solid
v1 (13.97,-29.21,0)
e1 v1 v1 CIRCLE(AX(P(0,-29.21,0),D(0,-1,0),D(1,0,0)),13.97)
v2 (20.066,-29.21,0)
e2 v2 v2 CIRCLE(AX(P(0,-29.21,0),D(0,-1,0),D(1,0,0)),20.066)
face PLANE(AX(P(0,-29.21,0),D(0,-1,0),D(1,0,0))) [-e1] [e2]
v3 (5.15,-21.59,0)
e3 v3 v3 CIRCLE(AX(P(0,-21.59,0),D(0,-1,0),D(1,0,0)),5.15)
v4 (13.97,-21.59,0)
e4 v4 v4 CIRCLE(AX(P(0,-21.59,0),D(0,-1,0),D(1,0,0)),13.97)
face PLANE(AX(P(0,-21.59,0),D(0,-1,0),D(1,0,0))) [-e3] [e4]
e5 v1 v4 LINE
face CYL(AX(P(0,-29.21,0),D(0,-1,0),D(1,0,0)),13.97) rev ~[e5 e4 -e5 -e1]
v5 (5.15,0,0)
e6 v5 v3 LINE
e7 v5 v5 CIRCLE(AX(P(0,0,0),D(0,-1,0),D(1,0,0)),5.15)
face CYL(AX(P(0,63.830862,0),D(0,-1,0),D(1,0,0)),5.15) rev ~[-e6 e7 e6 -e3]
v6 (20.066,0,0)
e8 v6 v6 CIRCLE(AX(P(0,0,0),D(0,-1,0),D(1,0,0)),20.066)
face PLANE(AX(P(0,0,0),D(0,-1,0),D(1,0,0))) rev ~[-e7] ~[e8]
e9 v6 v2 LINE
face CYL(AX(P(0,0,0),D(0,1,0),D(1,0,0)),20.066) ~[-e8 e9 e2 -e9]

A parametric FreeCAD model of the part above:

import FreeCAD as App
import Part
import Sketcher
from FreeCAD import Vector
Q = App.Units.Quantity

doc = App.newDocument("Part")
body = doc.addObject("PartDesign::Body", "Body")

# Sketch on XZ plane
sketch1 = body.newObject("Sketcher::SketchObject", "Sketch")
sketch1.AttachmentSupport = (doc.getObject("XZ_Plane"), [""])
sketch1.MapMode = "FlatFace"
sketch1.addGeometry(Part.Circle(Vector(0, 0, 0), Vector(0, 0, 1), 20), False)
sketch1.addConstraint([
    Sketcher.Constraint("Coincident", 0, 3, -1, 1),
    Sketcher.Constraint("Diameter", 0, Q("1.58 in")),
])
pad1 = body.newObject("PartDesign::Pad", "Pad")
pad1.Profile = sketch1
pad1.Length = Q("1.15 in")

# Sketch on XZ plane
sketch2 = body.newObject("Sketcher::SketchObject", "Sketch001")
sketch2.AttachmentSupport = (doc.getObject("XZ_Plane"), [""])
sketch2.MapMode = "FlatFace"
sketch2.AttachmentOffset = App.Placement(Vector(0, 0, 1.15 * 25.4), App.Rotation())
sketch2.addGeometry(Part.Circle(Vector(0, 0, 0), Vector(0, 0, 1), 14), False)
sketch2.addConstraint([
    Sketcher.Constraint("Coincident", 0, 3, -1, 1),
    Sketcher.Constraint("Diameter", 0, Q("1.1 in")),
])
pocket1 = body.newObject("PartDesign::Pocket", "Pocket")
pocket1.Profile = sketch2
pocket1.Length = Q("0.3 in")

# Sketch on XZ plane
sketch3 = body.newObject("Sketcher::SketchObject", "Sketch002")
sketch3.AttachmentSupport = (doc.getObject("XZ_Plane"), [""])
sketch3.MapMode = "FlatFace"
sketch3.addGeometry(Part.Circle(Vector(0, 0, 0), Vector(0, 0, 1), 5), False)
sketch3.addConstraint([
    Sketcher.Constraint("Coincident", 0, 3, -1, 1),
    Sketcher.Constraint("Diameter", 0, 10.3),
])
doc.recompute()
hole = body.newObject("PartDesign::Hole", "Hole")
hole.Profile = sketch3
hole.ThreadType = "None"
hole.Diameter = 10.3
hole.DepthType = "ThroughAll"
hole.Reversed = True

doc.recompute()
